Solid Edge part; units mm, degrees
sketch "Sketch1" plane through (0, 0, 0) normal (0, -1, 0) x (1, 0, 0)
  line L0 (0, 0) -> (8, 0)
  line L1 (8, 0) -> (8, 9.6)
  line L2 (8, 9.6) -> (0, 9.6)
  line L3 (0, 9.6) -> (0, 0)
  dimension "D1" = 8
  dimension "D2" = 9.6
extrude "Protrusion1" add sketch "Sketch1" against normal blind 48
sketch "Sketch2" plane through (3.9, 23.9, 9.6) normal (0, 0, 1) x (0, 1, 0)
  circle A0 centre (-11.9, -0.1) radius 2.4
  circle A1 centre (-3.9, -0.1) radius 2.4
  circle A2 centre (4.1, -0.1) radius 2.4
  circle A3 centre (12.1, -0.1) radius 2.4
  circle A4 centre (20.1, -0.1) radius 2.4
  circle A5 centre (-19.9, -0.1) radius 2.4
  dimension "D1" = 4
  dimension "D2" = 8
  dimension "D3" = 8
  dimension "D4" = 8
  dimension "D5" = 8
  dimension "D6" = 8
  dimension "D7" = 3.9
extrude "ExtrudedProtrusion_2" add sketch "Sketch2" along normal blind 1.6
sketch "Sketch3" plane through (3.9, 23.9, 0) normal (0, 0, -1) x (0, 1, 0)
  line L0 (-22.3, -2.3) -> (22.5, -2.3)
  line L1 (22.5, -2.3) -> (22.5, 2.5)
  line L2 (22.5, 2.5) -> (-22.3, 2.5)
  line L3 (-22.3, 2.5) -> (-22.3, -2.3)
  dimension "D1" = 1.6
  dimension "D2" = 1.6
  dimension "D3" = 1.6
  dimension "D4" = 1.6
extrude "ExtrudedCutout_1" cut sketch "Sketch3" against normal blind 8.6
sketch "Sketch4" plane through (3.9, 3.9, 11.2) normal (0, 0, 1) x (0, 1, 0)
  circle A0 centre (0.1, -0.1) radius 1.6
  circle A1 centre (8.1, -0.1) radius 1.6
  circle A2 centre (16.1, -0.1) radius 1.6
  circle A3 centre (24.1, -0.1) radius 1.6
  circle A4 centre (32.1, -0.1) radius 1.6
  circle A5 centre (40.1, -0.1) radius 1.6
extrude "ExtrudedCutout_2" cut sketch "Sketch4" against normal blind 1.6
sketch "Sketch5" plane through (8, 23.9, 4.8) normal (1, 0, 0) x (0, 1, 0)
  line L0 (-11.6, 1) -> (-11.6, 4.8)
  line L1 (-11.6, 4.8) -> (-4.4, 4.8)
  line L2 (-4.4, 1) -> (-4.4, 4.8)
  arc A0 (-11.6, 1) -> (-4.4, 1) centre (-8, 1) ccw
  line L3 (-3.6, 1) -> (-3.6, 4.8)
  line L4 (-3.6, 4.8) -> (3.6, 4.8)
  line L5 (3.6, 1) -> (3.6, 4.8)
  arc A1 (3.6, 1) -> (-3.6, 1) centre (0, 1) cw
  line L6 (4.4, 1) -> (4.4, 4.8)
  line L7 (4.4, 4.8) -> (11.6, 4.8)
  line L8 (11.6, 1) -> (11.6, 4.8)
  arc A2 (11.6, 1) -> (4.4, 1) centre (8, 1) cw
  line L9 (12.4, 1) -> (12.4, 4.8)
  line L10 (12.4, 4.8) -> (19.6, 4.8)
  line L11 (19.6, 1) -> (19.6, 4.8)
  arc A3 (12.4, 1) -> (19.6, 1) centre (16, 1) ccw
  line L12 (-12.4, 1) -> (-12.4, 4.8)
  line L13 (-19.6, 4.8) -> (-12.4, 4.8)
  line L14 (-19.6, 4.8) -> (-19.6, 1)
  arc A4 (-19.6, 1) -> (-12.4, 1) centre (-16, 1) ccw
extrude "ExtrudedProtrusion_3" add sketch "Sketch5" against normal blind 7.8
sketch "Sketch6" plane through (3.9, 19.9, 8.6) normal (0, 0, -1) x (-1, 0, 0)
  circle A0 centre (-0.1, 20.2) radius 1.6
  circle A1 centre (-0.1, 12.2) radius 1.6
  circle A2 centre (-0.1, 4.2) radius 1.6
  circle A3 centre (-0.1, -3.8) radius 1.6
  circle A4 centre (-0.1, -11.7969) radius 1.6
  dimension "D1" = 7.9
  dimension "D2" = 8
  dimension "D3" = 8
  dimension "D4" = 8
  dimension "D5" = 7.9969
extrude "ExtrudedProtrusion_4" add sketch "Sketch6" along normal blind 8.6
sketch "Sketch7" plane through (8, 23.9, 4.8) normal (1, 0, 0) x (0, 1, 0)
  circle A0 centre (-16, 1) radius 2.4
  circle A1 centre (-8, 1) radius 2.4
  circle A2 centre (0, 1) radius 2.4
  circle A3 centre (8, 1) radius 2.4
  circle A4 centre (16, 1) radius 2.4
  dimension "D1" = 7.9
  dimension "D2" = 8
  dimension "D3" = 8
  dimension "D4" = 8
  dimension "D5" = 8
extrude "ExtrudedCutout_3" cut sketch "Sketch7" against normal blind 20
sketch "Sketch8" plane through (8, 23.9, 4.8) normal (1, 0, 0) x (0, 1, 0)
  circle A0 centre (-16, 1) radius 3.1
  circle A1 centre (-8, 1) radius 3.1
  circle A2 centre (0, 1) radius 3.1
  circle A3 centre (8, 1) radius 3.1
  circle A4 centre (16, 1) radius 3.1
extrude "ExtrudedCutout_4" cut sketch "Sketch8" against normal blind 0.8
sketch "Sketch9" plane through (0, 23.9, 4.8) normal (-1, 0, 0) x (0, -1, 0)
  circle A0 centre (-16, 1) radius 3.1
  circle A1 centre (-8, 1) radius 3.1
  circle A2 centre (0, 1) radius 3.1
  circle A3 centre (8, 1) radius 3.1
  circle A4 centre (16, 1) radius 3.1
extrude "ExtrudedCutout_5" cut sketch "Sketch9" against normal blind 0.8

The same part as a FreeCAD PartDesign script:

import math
import FreeCAD as App
import Part
import Sketcher
Q = App.Units.Quantity

doc = App.newDocument("Part")
body = doc.addObject("PartDesign::Body", "Body")

# Sketch on XZ plane
sketch1 = doc.addObject("Sketcher::SketchObject", "Sketch")
body.addObject(sketch1)
sketch1.AttachmentSupport = (doc.XZ_Plane, [""])
sketch1.MapMode = "FlatFace"
sketch1.addGeometry([
    Part.LineSegment(App.Vector(0, 9.6, 0), App.Vector(0, 0, 0)),
    Part.LineSegment(App.Vector(0, 0, 0), App.Vector(8, 0, 0)),
    Part.LineSegment(App.Vector(8, 0, 0), App.Vector(8, 9.6, 0)),
    Part.LineSegment(App.Vector(8, 9.6, 0), App.Vector(0, 9.6, 0)),
], False)
sketch1.addConstraint([
    Sketcher.Constraint("Coincident", 0, 2, 1, 1),
    Sketcher.Constraint("Coincident", 1, 2, 2, 1),
    Sketcher.Constraint("Coincident", 2, 2, 3, 1),
    Sketcher.Constraint("Coincident", 3, 2, 0, 1),
    Sketcher.Constraint("Vertical", 0),
    Sketcher.Constraint("Horizontal", 1),
    Sketcher.Constraint("Vertical", 2),
    Sketcher.Constraint("Horizontal", 3),
    Sketcher.Constraint("Coincident", 0, 2, -1, 1),
    Sketcher.Constraint("DistanceX", 1, 1, 1, 2, Q("8 mm")),
    Sketcher.Constraint("DistanceY", 0, 2, 0, 1, Q("9.6 mm")),
])
pad1 = doc.addObject("PartDesign::Pad", "Pad")
body.addObject(pad1)
pad1.Profile = sketch1
pad1.Length = 48
pad1.Reversed = True

# Sketch on XY plane
sketch2 = doc.addObject("Sketcher::SketchObject", "Sketch001")
body.addObject(sketch2)
sketch2.AttachmentSupport = (doc.XY_Plane, [""])
sketch2.MapMode = "FlatFace"
sketch2.AttachmentOffset = App.Placement(App.Vector(0, 0, 9.6), App.Rotation())
sketch2.addGeometry([
    Part.Circle(App.Vector(4, 12, 0), App.Vector(0, 0, 1), 2.4),  # 0
    Part.Circle(App.Vector(4, 20, 0), App.Vector(0, 0, 1), 2.4),  # 1
    Part.Circle(App.Vector(4, 28, 0), App.Vector(0, 0, 1), 2.4),  # 2
    Part.Circle(App.Vector(4, 36, 0), App.Vector(0, 0, 1), 2.4),  # 3
    Part.Circle(App.Vector(4, 44, 0), App.Vector(0, 0, 1), 2.4),  # 4
    Part.Circle(App.Vector(4, 4, 0), App.Vector(0, 0, 1), 2.4),  # 5
], False)
sketch2.addConstraint([
    Sketcher.Constraint("Equal", 0, 1),
    Sketcher.Constraint("Equal", 1, 2),
    Sketcher.Constraint("Equal", 2, 3),
    Sketcher.Constraint("Equal", 3, 4),
    Sketcher.Constraint("Equal", 4, 5),
    Sketcher.Constraint("Vertical", 0, 3, 1, 3),
    Sketcher.Constraint("Vertical", 1, 3, 2, 3),
    Sketcher.Constraint("Vertical", 2, 3, 3, 3),
    Sketcher.Constraint("Vertical", 3, 3, 4, 3),
    Sketcher.Constraint("Vertical", 4, 3, 5, 3),
    Sketcher.Constraint("Diameter", 0, Q("4.8 mm")),
    Sketcher.Constraint("DistanceX", -1, 1, 0, 3, Q("4 mm")),
    Sketcher.Constraint("DistanceY", -1, 1, 0, 3, Q("12 mm")),
    Sketcher.Constraint("DistanceY", -1, 1, 1, 3, Q("20 mm")),
    Sketcher.Constraint("DistanceY", -1, 1, 2, 3, Q("28 mm")),
    Sketcher.Constraint("DistanceY", -1, 1, 3, 3, Q("36 mm")),
    Sketcher.Constraint("DistanceY", -1, 1, 4, 3, Q("44 mm")),
    Sketcher.Constraint("DistanceY", -1, 1, 5, 3, Q("4 mm")),
])
pad2 = doc.addObject("PartDesign::Pad", "Pad001")
body.addObject(pad2)
pad2.Profile = sketch2
pad2.Length = 1.6

# Sketch on XY plane
sketch3 = doc.addObject("Sketcher::SketchObject", "Sketch002")
body.addObject(sketch3)
sketch3.AttachmentSupport = (doc.XY_Plane, [""])
sketch3.MapMode = "FlatFace"
sketch3.addGeometry([
    Part.LineSegment(App.Vector(6.4, 1.6, 0), App.Vector(1.6, 1.6, 0)),
    Part.LineSegment(App.Vector(1.6, 1.6, 0), App.Vector(1.6, 46.4, 0)),
    Part.LineSegment(App.Vector(1.6, 46.4, 0), App.Vector(6.4, 46.4, 0)),
    Part.LineSegment(App.Vector(6.4, 46.4, 0), App.Vector(6.4, 1.6, 0)),
], False)
sketch3.addConstraint([
    Sketcher.Constraint("Coincident", 0, 2, 1, 1),
    Sketcher.Constraint("Coincident", 1, 2, 2, 1),
    Sketcher.Constraint("Coincident", 2, 2, 3, 1),
    Sketcher.Constraint("Coincident", 3, 2, 0, 1),
    Sketcher.Constraint("Horizontal", 0),
    Sketcher.Constraint("Vertical", 1),
    Sketcher.Constraint("Horizontal", 2),
    Sketcher.Constraint("Vertical", 3),
    Sketcher.Constraint("DistanceX", 0, 2, 0, 1, Q("4.8 mm")),
    Sketcher.Constraint("DistanceY", 1, 1, 1, 2, Q("44.8 mm")),
    Sketcher.Constraint("DistanceX", -1, 1, 0, 2, Q("1.6 mm")),
    Sketcher.Constraint("DistanceY", -1, 1, 0, 2, Q("1.6 mm")),
])
pocket1 = doc.addObject("PartDesign::Pocket", "Pocket")
body.addObject(pocket1)
pocket1.Profile = sketch3
pocket1.Length = 8.6
pocket1.Reversed = True

# Sketch on XY plane
sketch4 = doc.addObject("Sketcher::SketchObject", "Sketch003")
body.addObject(sketch4)
sketch4.AttachmentSupport = (doc.XY_Plane, [""])
sketch4.MapMode = "FlatFace"
sketch4.AttachmentOffset = App.Placement(App.Vector(0, 0, 11.2), App.Rotation())
sketch4.addGeometry([
    Part.Circle(App.Vector(4, 4, 0), App.Vector(0, 0, 1), 1.6),  # 0
    Part.Circle(App.Vector(4, 12, 0), App.Vector(0, 0, 1), 1.6),  # 1
    Part.Circle(App.Vector(4, 20, 0), App.Vector(0, 0, 1), 1.6),  # 2
    Part.Circle(App.Vector(4, 28, 0), App.Vector(0, 0, 1), 1.6),  # 3
    Part.Circle(App.Vector(4, 36, 0), App.Vector(0, 0, 1), 1.6),  # 4
    Part.Circle(App.Vector(4, 44, 0), App.Vector(0, 0, 1), 1.6),  # 5
], False)
sketch4.addConstraint([
    Sketcher.Constraint("Equal", 0, 1),
    Sketcher.Constraint("Equal", 1, 2),
    Sketcher.Constraint("Equal", 2, 3),
    Sketcher.Constraint("Equal", 3, 4),
    Sketcher.Constraint("Equal", 4, 5),
    Sketcher.Constraint("Vertical", 0, 3, 1, 3),
    Sketcher.Constraint("Vertical", 1, 3, 2, 3),
    Sketcher.Constraint("Vertical", 2, 3, 3, 3),
    Sketcher.Constraint("Vertical", 3, 3, 4, 3),
    Sketcher.Constraint("Vertical", 4, 3, 5, 3),
    Sketcher.Constraint("Diameter", 0, Q("3.2 mm")),
    Sketcher.Constraint("DistanceX", -1, 1, 0, 3, Q("4 mm")),
    Sketcher.Constraint("DistanceY", -1, 1, 0, 3, Q("4 mm")),
    Sketcher.Constraint("DistanceY", -1, 1, 1, 3, Q("12 mm")),
    Sketcher.Constraint("DistanceY", -1, 1, 2, 3, Q("20 mm")),
    Sketcher.Constraint("DistanceY", -1, 1, 3, 3, Q("28 mm")),
    Sketcher.Constraint("DistanceY", -1, 1, 4, 3, Q("36 mm")),
    Sketcher.Constraint("DistanceY", -1, 1, 5, 3, Q("44 mm")),
])
pocket2 = doc.addObject("PartDesign::Pocket", "Pocket001")
body.addObject(pocket2)
pocket2.Profile = sketch4
pocket2.Length = 1.6

# Sketch on YZ plane
sketch5 = doc.addObject("Sketcher::SketchObject", "Sketch004")
body.addObject(sketch5)
sketch5.AttachmentSupport = (doc.YZ_Plane, [""])
sketch5.MapMode = "FlatFace"
sketch5.AttachmentOffset = App.Placement(App.Vector(0, 0, 8), App.Rotation())
sketch5.addGeometry([
    Part.LineSegment(App.Vector(12.3, 9.6, 0), App.Vector(12.3, 5.8, 0)),  # 0
    Part.ArcOfCircle(Part.Circle(App.Vector(15.9, 5.8, 0), App.Vector(0, 0, 1), 3.6), math.radians(180), math.radians(360)),  # 1
    Part.LineSegment(App.Vector(19.5, 5.8, 0), App.Vector(19.5, 9.6, 0)),  # 2
    Part.LineSegment(App.Vector(19.5, 9.6, 0), App.Vector(12.3, 9.6, 0)),  # 3
    Part.LineSegment(App.Vector(20.3, 9.6, 0), App.Vector(20.3, 5.8, 0)),  # 4
    Part.ArcOfCircle(Part.Circle(App.Vector(23.9, 5.8, 0), App.Vector(0, 0, 1), 3.6), math.radians(180), math.radians(360)),  # 5
    Part.LineSegment(App.Vector(27.5, 5.8, 0), App.Vector(27.5, 9.6, 0)),  # 6
    Part.LineSegment(App.Vector(27.5, 9.6, 0), App.Vector(20.3, 9.6, 0)),  # 7
    Part.LineSegment(App.Vector(28.3, 9.6, 0), App.Vector(28.3, 5.8, 0)),  # 8
    Part.ArcOfCircle(Part.Circle(App.Vector(31.9, 5.8, 0), App.Vector(0, 0, 1), 3.6), math.radians(180), math.radians(360)),  # 9
    Part.LineSegment(App.Vector(35.5, 5.8, 0), App.Vector(35.5, 9.6, 0)),  # 10
    Part.LineSegment(App.Vector(35.5, 9.6, 0), App.Vector(28.3, 9.6, 0)),  # 11
    Part.LineSegment(App.Vector(36.3, 9.6, 0), App.Vector(36.3, 5.8, 0)),  # 12
    Part.ArcOfCircle(Part.Circle(App.Vector(39.9, 5.8, 0), App.Vector(0, 0, 1), 3.6), math.radians(180), math.radians(360)),  # 13
    Part.LineSegment(App.Vector(43.5, 5.8, 0), App.Vector(43.5, 9.6, 0)),  # 14
    Part.LineSegment(App.Vector(43.5, 9.6, 0), App.Vector(36.3, 9.6, 0)),  # 15
    Part.ArcOfCircle(Part.Circle(App.Vector(7.9, 5.8, 0), App.Vector(0, 0, 1), 3.6), math.radians(180), math.radians(360)),  # 16
    Part.LineSegment(App.Vector(11.5, 5.8, 0), App.Vector(11.5, 9.6, 0)),  # 17
    Part.LineSegment(App.Vector(11.5, 9.6, 0), App.Vector(4.3, 9.6, 0)),  # 18
    Part.LineSegment(App.Vector(4.3, 9.6, 0), App.Vector(4.3, 5.8, 0)),  # 19
], False)
sketch5.addConstraint([
    Sketcher.Constraint("Tangent", 0, 2, 1, 1),
    Sketcher.Constraint("Tangent", 1, 2, 2, 1),
    Sketcher.Constraint("Coincident", 2, 2, 3, 1),
    Sketcher.Constraint("Coincident", 3, 2, 0, 1),
    Sketcher.Constraint("Tangent", 4, 2, 5, 1),
    Sketcher.Constraint("Tangent", 5, 2, 6, 1),
    Sketcher.Constraint("Coincident", 6, 2, 7, 1),
    Sketcher.Constraint("Coincident", 7, 2, 4, 1),
    Sketcher.Constraint("Tangent", 8, 2, 9, 1),
    Sketcher.Constraint("Tangent", 9, 2, 10, 1),
    Sketcher.Constraint("Coincident", 10, 2, 11, 1),
    Sketcher.Constraint("Coincident", 11, 2, 8, 1),
    Sketcher.Constraint("Tangent", 12, 2, 13, 1),
    Sketcher.Constraint("Tangent", 13, 2, 14, 1),
    Sketcher.Constraint("Coincident", 14, 2, 15, 1),
    Sketcher.Constraint("Coincident", 15, 2, 12, 1),
    Sketcher.Constraint("Tangent", 16, 2, 17, 1),
    Sketcher.Constraint("Coincident", 17, 2, 18, 1),
    Sketcher.Constraint("Coincident", 18, 2, 19, 1),
    Sketcher.Constraint("Tangent", 19, 2, 16, 1),
    Sketcher.Constraint("Vertical", 0),
    Sketcher.Constraint("Vertical", 2),
    Sketcher.Constraint("Horizontal", 3),
    Sketcher.Constraint("Vertical", 4),
    Sketcher.Constraint("Vertical", 6),
    Sketcher.Constraint("Horizontal", 7),
    Sketcher.Constraint("Vertical", 8),
    Sketcher.Constraint("Vertical", 10),
    Sketcher.Constraint("Horizontal", 11),
    Sketcher.Constraint("Vertical", 12),
    Sketcher.Constraint("Vertical", 14),
    Sketcher.Constraint("Horizontal", 15),
    Sketcher.Constraint("Vertical", 17),
    Sketcher.Constraint("Horizontal", 18),
    Sketcher.Constraint("Vertical", 19),
    Sketcher.Constraint("Equal", 1, 5),
    Sketcher.Constraint("Equal", 5, 9),
    Sketcher.Constraint("Equal", 9, 13),
    Sketcher.Constraint("Equal", 13, 16),
    Sketcher.Constraint("Horizontal", 1, 3, 5, 3),
    Sketcher.Constraint("Horizontal", 5, 3, 9, 3),
    Sketcher.Constraint("Horizontal", 9, 3, 13, 3),
    Sketcher.Constraint("Horizontal", 13, 3, 16, 3),
    Sketcher.Constraint("Horizontal", 3, 2, 6, 2),
    Sketcher.Constraint("Horizontal", 7, 2, 10, 2),
    Sketcher.Constraint("Horizontal", 11, 2, 14, 2),
    Sketcher.Constraint("Horizontal", 15, 2, 17, 2),
    Sketcher.Constraint("Radius", 1, Q("3.6 mm")),
    Sketcher.Constraint("DistanceY", 0, 2, 0, 1, Q("3.8 mm")),
    Sketcher.Constraint("DistanceX", 1, 3, 5, 3, Q("8 mm")),
    Sketcher.Constraint("DistanceX", 5, 3, 9, 3, Q("8 mm")),
    Sketcher.Constraint("DistanceX", 9, 3, 13, 3, Q("8 mm")),
    Sketcher.Constraint("DistanceX", 16, 3, 1, 3, Q("8 mm")),
    Sketcher.Constraint("DistanceX", -1, 1, 1, 3, Q("15.9 mm")),
    Sketcher.Constraint("DistanceY", -1, 1, 1, 3, Q("5.8 mm")),
])
pad3 = doc.addObject("PartDesign::Pad", "Pad002")
body.addObject(pad3)
pad3.Profile = sketch5
pad3.Length = 7.8
pad3.Reversed = True

# Sketch on XY plane
sketch6 = doc.addObject("Sketcher::SketchObject", "Sketch005")
body.addObject(sketch6)
sketch6.AttachmentSupport = (doc.XY_Plane, [""])
sketch6.MapMode = "FlatFace"
sketch6.AttachmentOffset = App.Placement(App.Vector(0, 0, 8.6), App.Rotation())
sketch6.addGeometry([
    Part.Circle(App.Vector(4, 40.1, 0), App.Vector(0, 0, 1), 1.6),  # 0
    Part.Circle(App.Vector(4, 32.1, 0), App.Vector(0, 0, 1), 1.6),  # 1
    Part.Circle(App.Vector(4, 24.1, 0), App.Vector(0, 0, 1), 1.6),  # 2
    Part.Circle(App.Vector(4, 16.1, 0), App.Vector(0, 0, 1), 1.6),  # 3
    Part.Circle(App.Vector(4, 8.1031, 0), App.Vector(0, 0, 1), 1.6),  # 4
], False)
sketch6.addConstraint([
    Sketcher.Constraint("Equal", 0, 1),
    Sketcher.Constraint("Equal", 1, 2),
    Sketcher.Constraint("Equal", 2, 3),
    Sketcher.Constraint("Equal", 3, 4),
    Sketcher.Constraint("Vertical", 0, 3, 1, 3),
    Sketcher.Constraint("Vertical", 1, 3, 2, 3),
    Sketcher.Constraint("Vertical", 2, 3, 3, 3),
    Sketcher.Constraint("Vertical", 3, 3, 4, 3),
    Sketcher.Constraint("Diameter", 0, Q("3.2 mm")),
    Sketcher.Constraint("DistanceX", -1, 1, 0, 3, Q("4 mm")),
    Sketcher.Constraint("DistanceY", 1, 3, 0, 3, Q("8 mm")),
    Sketcher.Constraint("DistanceY", 2, 3, 1, 3, Q("8 mm")),
    Sketcher.Constraint("DistanceY", 3, 3, 2, 3, Q("8 mm")),
    Sketcher.Constraint("DistanceY", -1, 1, 0, 3, Q("40.1 mm")),
    Sketcher.Constraint("DistanceY", -1, 1, 4, 3, Q("8.103 mm")),
])
pad4 = doc.addObject("PartDesign::Pad", "Pad003")
body.addObject(pad4)
pad4.Profile = sketch6
pad4.Length = 8.6
pad4.Reversed = True

# Sketch on YZ plane
sketch7 = doc.addObject("Sketcher::SketchObject", "Sketch006")
body.addObject(sketch7)
sketch7.AttachmentSupport = (doc.YZ_Plane, [""])
sketch7.MapMode = "FlatFace"
sketch7.AttachmentOffset = App.Placement(App.Vector(0, 0, 8), App.Rotation())
sketch7.addGeometry([
    Part.Circle(App.Vector(7.9, 5.8, 0), App.Vector(0, 0, 1), 2.4),  # 0
    Part.Circle(App.Vector(15.9, 5.8, 0), App.Vector(0, 0, 1), 2.4),  # 1
    Part.Circle(App.Vector(23.9, 5.8, 0), App.Vector(0, 0, 1), 2.4),  # 2
    Part.Circle(App.Vector(31.9, 5.8, 0), App.Vector(0, 0, 1), 2.4),  # 3
    Part.Circle(App.Vector(39.9, 5.8, 0), App.Vector(0, 0, 1), 2.4),  # 4
], False)
sketch7.addConstraint([
    Sketcher.Constraint("Equal", 0, 1),
    Sketcher.Constraint("Equal", 1, 2),
    Sketcher.Constraint("Equal", 2, 3),
    Sketcher.Constraint("Equal", 3, 4),
    Sketcher.Constraint("Horizontal", 0, 3, 1, 3),
    Sketcher.Constraint("Horizontal", 1, 3, 2, 3),
    Sketcher.Constraint("Horizontal", 2, 3, 3, 3),
    Sketcher.Constraint("Horizontal", 3, 3, 4, 3),
    Sketcher.Constraint("Diameter", 0, Q("4.8 mm")),
    Sketcher.Constraint("DistanceX", 0, 3, 1, 3, Q("8 mm")),
    Sketcher.Constraint("DistanceX", 1, 3, 2, 3, Q("8 mm")),
    Sketcher.Constraint("DistanceX", 2, 3, 3, 3, Q("8 mm")),
    Sketcher.Constraint("DistanceX", 3, 3, 4, 3, Q("8 mm")),
    Sketcher.Constraint("DistanceX", -1, 1, 0, 3, Q("7.9 mm")),
    Sketcher.Constraint("DistanceY", -1, 1, 0, 3, Q("5.8 mm")),
])
pocket3 = doc.addObject("PartDesign::Pocket", "Pocket002")
body.addObject(pocket3)
pocket3.Profile = sketch7
pocket3.Length = 20

# Sketch on YZ plane
sketch8 = doc.addObject("Sketcher::SketchObject", "Sketch007")
body.addObject(sketch8)
sketch8.AttachmentSupport = (doc.YZ_Plane, [""])
sketch8.MapMode = "FlatFace"
sketch8.AttachmentOffset = App.Placement(App.Vector(0, 0, 8), App.Rotation())
sketch8.addGeometry([
    Part.Circle(App.Vector(7.9, 5.8, 0), App.Vector(0, 0, 1), 3.1),  # 0
    Part.Circle(App.Vector(15.9, 5.8, 0), App.Vector(0, 0, 1), 3.1),  # 1
    Part.Circle(App.Vector(23.9, 5.8, 0), App.Vector(0, 0, 1), 3.1),  # 2
    Part.Circle(App.Vector(31.9, 5.8, 0), App.Vector(0, 0, 1), 3.1),  # 3
    Part.Circle(App.Vector(39.9, 5.8, 0), App.Vector(0, 0, 1), 3.1),  # 4
], False)
sketch8.addConstraint([
    Sketcher.Constraint("Equal", 0, 1),
    Sketcher.Constraint("Equal", 1, 2),
    Sketcher.Constraint("Equal", 2, 3),
    Sketcher.Constraint("Equal", 3, 4),
    Sketcher.Constraint("Horizontal", 0, 3, 1, 3),
    Sketcher.Constraint("Horizontal", 1, 3, 2, 3),
    Sketcher.Constraint("Horizontal", 2, 3, 3, 3),
    Sketcher.Constraint("Horizontal", 3, 3, 4, 3),
    Sketcher.Constraint("Diameter", 0, Q("6.2 mm")),
    Sketcher.Constraint("DistanceX", 0, 3, 1, 3, Q("8 mm")),
    Sketcher.Constraint("DistanceX", 1, 3, 2, 3, Q("8 mm")),
    Sketcher.Constraint("DistanceX", 2, 3, 3, 3, Q("8 mm")),
    Sketcher.Constraint("DistanceX", 3, 3, 4, 3, Q("8 mm")),
    Sketcher.Constraint("DistanceX", -1, 1, 0, 3, Q("7.9 mm")),
    Sketcher.Constraint("DistanceY", -1, 1, 0, 3, Q("5.8 mm")),
])
pocket4 = doc.addObject("PartDesign::Pocket", "Pocket003")
body.addObject(pocket4)
pocket4.Profile = sketch8
pocket4.Length = 0.8

# Sketch on YZ plane
sketch9 = doc.addObject("Sketcher::SketchObject", "Sketch008")
body.addObject(sketch9)
sketch9.AttachmentSupport = (doc.YZ_Plane, [""])
sketch9.MapMode = "FlatFace"
sketch9.addGeometry([
    Part.Circle(App.Vector(39.9, 5.8, 0), App.Vector(0, 0, 1), 3.1),  # 0
    Part.Circle(App.Vector(31.9, 5.8, 0), App.Vector(0, 0, 1), 3.1),  # 1
    Part.Circle(App.Vector(23.9, 5.8, 0), App.Vector(0, 0, 1), 3.1),  # 2
    Part.Circle(App.Vector(15.9, 5.8, 0), App.Vector(0, 0, 1), 3.1),  # 3
    Part.Circle(App.Vector(7.9, 5.8, 0), App.Vector(0, 0, 1), 3.1),  # 4
], False)
sketch9.addConstraint([
    Sketcher.Constraint("Equal", 0, 1),
    Sketcher.Constraint("Equal", 1, 2),
    Sketcher.Constraint("Equal", 2, 3),
    Sketcher.Constraint("Equal", 3, 4),
    Sketcher.Constraint("Horizontal", 0, 3, 1, 3),
    Sketcher.Constraint("Horizontal", 1, 3, 2, 3),
    Sketcher.Constraint("Horizontal", 2, 3, 3, 3),
    Sketcher.Constraint("Horizontal", 3, 3, 4, 3),
    Sketcher.Constraint("Diameter", 0, Q("6.2 mm")),
    Sketcher.Constraint("DistanceX", 1, 3, 0, 3, Q("8 mm")),
    Sketcher.Constraint("DistanceX", 2, 3, 1, 3, Q("8 mm")),
    Sketcher.Constraint("DistanceX", 3, 3, 2, 3, Q("8 mm")),
    Sketcher.Constraint("DistanceX", 4, 3, 3, 3, Q("8 mm")),
    Sketcher.Constraint("DistanceX", -1, 1, 0, 3, Q("39.9 mm")),
    Sketcher.Constraint("DistanceY", -1, 1, 0, 3, Q("5.8 mm")),
])
pocket5 = doc.addObject("PartDesign::Pocket", "Pocket004")
body.addObject(pocket5)
pocket5.Profile = sketch9
pocket5.Length = 0.8
pocket5.Reversed = True

doc.recompute()
